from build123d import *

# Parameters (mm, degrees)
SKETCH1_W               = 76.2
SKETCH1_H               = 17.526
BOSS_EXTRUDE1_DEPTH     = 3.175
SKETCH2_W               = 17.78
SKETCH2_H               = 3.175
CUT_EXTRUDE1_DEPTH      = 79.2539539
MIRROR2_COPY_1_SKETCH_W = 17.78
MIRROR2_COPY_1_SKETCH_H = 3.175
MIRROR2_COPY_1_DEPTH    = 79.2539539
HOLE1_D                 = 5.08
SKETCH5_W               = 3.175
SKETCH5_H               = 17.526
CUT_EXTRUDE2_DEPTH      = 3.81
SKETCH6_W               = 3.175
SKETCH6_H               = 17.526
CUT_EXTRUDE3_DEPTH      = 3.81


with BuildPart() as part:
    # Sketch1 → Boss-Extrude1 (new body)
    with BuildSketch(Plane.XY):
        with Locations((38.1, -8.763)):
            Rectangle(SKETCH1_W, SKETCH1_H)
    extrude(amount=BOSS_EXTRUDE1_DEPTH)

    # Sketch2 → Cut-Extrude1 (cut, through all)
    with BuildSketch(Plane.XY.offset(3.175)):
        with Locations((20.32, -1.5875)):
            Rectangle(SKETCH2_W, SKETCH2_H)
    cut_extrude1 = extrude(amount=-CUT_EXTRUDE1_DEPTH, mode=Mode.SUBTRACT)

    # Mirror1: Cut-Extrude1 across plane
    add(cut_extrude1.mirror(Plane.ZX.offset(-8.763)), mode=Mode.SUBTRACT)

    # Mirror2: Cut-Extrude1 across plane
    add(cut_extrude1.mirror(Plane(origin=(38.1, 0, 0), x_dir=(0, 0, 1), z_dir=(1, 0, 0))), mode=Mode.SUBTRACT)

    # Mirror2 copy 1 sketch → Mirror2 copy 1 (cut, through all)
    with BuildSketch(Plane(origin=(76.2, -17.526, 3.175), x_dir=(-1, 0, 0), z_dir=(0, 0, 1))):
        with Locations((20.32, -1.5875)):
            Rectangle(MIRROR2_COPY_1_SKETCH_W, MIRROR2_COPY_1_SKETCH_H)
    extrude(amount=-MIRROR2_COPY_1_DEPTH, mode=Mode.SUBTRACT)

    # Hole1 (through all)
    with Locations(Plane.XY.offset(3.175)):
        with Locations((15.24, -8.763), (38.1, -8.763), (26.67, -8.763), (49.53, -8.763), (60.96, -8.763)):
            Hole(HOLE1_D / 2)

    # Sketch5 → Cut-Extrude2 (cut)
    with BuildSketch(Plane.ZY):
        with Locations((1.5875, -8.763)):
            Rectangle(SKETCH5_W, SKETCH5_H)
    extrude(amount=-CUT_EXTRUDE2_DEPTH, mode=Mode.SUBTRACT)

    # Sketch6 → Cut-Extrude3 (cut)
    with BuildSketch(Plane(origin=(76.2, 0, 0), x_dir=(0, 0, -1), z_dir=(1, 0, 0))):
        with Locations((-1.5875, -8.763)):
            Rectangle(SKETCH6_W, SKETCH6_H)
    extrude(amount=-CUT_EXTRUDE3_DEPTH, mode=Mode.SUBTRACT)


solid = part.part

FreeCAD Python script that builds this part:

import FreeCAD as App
import Part
import Sketcher
Q = App.Units.Quantity


def add_polygon(sketch, points):
    """Adds a closed chain of lines whose ends are joined by coincident constraints."""
    first, n = sketch.GeometryCount, len(points)
    for a, b in zip(points, points[1:] + points[:1]):
        sketch.addGeometry(Part.LineSegment(App.Vector(*a, 0), App.Vector(*b, 0)), False)
    for i in range(n):
        sketch.addConstraint(Sketcher.Constraint("Coincident", first + i, 2, first + (i + 1) % n, 1))

doc = App.newDocument("Part")
params = doc.addObject("Spreadsheet::Sheet", "Params")
for row, (alias, value) in enumerate([
    ("sketch1_width", "3 in"),
    ("sketch1_height", "0.69 in"),
    ("pad1_length", "0.125 in"),
    ("sketch2_width", "0.7 in"),
    ("sketch2_height", "0.125 in"),
    ("sketch3_width", "0.7 in"),
    ("sketch3_height", "0.125 in"),
    ("sketch4_diameter", "0.2 in"),
    ("hole_diameter", "0.2 in"),
    ("sketch5_width", "0.69 in"),
    ("sketch5_height", "0.125 in"),
    ("pocket3_length", "0.15 in"),
    ("sketch6_width", "0.69 in"),
    ("sketch6_height", "0.125 in"),
    ("pocket4_length", "0.15 in"),
], start=1):
    params.set(f"A{row}", alias)
    params.set(f"B{row}", "=" + value)
    params.setAlias(f"B{row}", alias)

body = doc.addObject("PartDesign::Body", "Body")

# Sketch on XY plane
sketch1 = body.newObject("Sketcher::SketchObject", "Sketch")
sketch1.AttachmentSupport = (doc.getObject("XY_Plane"), [""])
sketch1.MapMode = "FlatFace"
add_polygon(sketch1, [(0, 0), (0, -18), (76, -18), (76, 0)])  # lines 0-3
sketch1.addConstraint(Sketcher.Constraint("Vertical", 0))
sketch1.addConstraint(Sketcher.Constraint("Horizontal", 1))
sketch1.addConstraint(Sketcher.Constraint("Vertical", 2))
sketch1.addConstraint(Sketcher.Constraint("Horizontal", 3))
sketch1.addConstraint(Sketcher.Constraint("Coincident", 3, 2, -1, 1))
sketch1.addConstraint(Sketcher.Constraint("DistanceX", 1, 1, 1, 2, Q("3 in")))
sketch1.addConstraint(Sketcher.Constraint("DistanceY", 0, 2, 0, 1, Q("0.69 in")))
sketch1.setExpression("Constraints[9]", "Params.sketch1_width")
sketch1.setExpression("Constraints[10]", "Params.sketch1_height")
pad1 = body.newObject("PartDesign::Pad", "Pad")
pad1.Profile = sketch1
pad1.setExpression("Length", "Params.pad1_length")

# Sketch on XY plane
sketch2 = body.newObject("Sketcher::SketchObject", "Sketch001")
sketch2.AttachmentSupport = (doc.getObject("XY_Plane"), [""])
sketch2.MapMode = "FlatFace"
sketch2.AttachmentOffset = App.Placement(App.Vector(0, 0, 0.125 * 25.4), App.Rotation())
add_polygon(sketch2, [(11.4, 0), (11.4, -3.2), (29.2, -3.2), (29.2, 0)])  # lines 0-3
sketch2.addConstraint(Sketcher.Constraint("Vertical", 0))
sketch2.addConstraint(Sketcher.Constraint("Horizontal", 1))
sketch2.addConstraint(Sketcher.Constraint("Vertical", 2))
sketch2.addConstraint(Sketcher.Constraint("Horizontal", 3))
sketch2.addConstraint(Sketcher.Constraint("PointOnObject", 2, 2, -1))
sketch2.addConstraint(Sketcher.Constraint("DistanceX", 1, 1, 1, 2, Q("0.7 in")))
sketch2.addConstraint(Sketcher.Constraint("DistanceY", 0, 2, 0, 1, Q("0.125 in")))
sketch2.addConstraint(Sketcher.Constraint("DistanceX", -1, 1, 0, 2, Q("0.45 in")))
sketch2.setExpression("Constraints[9]", "Params.sketch2_width")
sketch2.setExpression("Constraints[10]", "Params.sketch2_height")
pocket1 = body.newObject("PartDesign::Pocket", "Pocket")
pocket1.Profile = sketch2
pocket1.Type = "ThroughAll"
doc.recompute()

datumplane = body.newObject("PartDesign::Plane", "DatumPlane")
datumplane.AttachmentSupport = (doc.getObject("XZ_Plane"), [""])
datumplane.MapMode = "FlatFace"
datumplane.AttachmentOffset = App.Placement(App.Vector(0, 0, 0.345 * 25.4), App.Rotation())
mirrored = body.newObject("PartDesign::Mirrored", "Mirrored")
mirrored.Originals = [pocket1]
mirrored.MirrorPlane = (datumplane, [""])
body.Tip = mirrored
doc.recompute()

datumplane2 = body.newObject("PartDesign::Plane", "DatumPlane001")
datumplane2.AttachmentSupport = (doc.getObject("YZ_Plane"), [""])
datumplane2.MapMode = "FlatFace"
datumplane2.AttachmentOffset = App.Placement(App.Vector(0, 0, 1.5 * 25.4), App.Rotation())
mirrored2 = body.newObject("PartDesign::Mirrored", "Mirrored001")
mirrored2.Originals = [pocket1]
mirrored2.MirrorPlane = (datumplane2, [""])
body.Tip = mirrored2

# Sketch on XY plane
sketch3 = body.newObject("Sketcher::SketchObject", "Sketch002")
sketch3.AttachmentSupport = (doc.getObject("XY_Plane"), [""])
sketch3.MapMode = "FlatFace"
sketch3.AttachmentOffset = App.Placement(App.Vector(0, 0, 0.125 * 25.4), App.Rotation())
add_polygon(sketch3, [(64.8, -17.5), (64.8, -14.4), (47, -14.4), (47, -17.5)])  # lines 0-3
sketch3.addConstraint(Sketcher.Constraint("Vertical", 0))
sketch3.addConstraint(Sketcher.Constraint("Horizontal", 1))
sketch3.addConstraint(Sketcher.Constraint("Vertical", 2))
sketch3.addConstraint(Sketcher.Constraint("Horizontal", 3))
sketch3.addConstraint(Sketcher.Constraint("DistanceX", 1, 2, 1, 1, Q("0.7 in")))
sketch3.addConstraint(Sketcher.Constraint("DistanceY", 0, 1, 0, 2, Q("0.125 in")))
sketch3.addConstraint(Sketcher.Constraint("DistanceX", -1, 1, 0, 2, Q("2.55 in")))
sketch3.addConstraint(Sketcher.Constraint("DistanceY", 2, 2, -1, 1, Q("0.69 in")))
sketch3.setExpression("Constraints[8]", "Params.sketch3_width")
sketch3.setExpression("Constraints[9]", "Params.sketch3_height")
pocket2 = body.newObject("PartDesign::Pocket", "Pocket001")
pocket2.Profile = sketch3
pocket2.Type = "ThroughAll"

# Sketch on XY plane
sketch4 = body.newObject("Sketcher::SketchObject", "Sketch003")
sketch4.AttachmentSupport = (doc.getObject("XY_Plane"), [""])
sketch4.MapMode = "FlatFace"
sketch4.AttachmentOffset = App.Placement(App.Vector(0, 0, 0.125 * 25.4), App.Rotation())
sketch4.addGeometry(Part.Circle(App.Vector(15.2, -8.8, 0), App.Vector(0, 0, 1), 2.5), False)
sketch4.addGeometry(Part.Circle(App.Vector(38.1, -8.8, 0), App.Vector(0, 0, 1), 2.5), False)
sketch4.addGeometry(Part.Circle(App.Vector(26.7, -8.8, 0), App.Vector(0, 0, 1), 2.5), False)
sketch4.addGeometry(Part.Circle(App.Vector(49.5, -8.8, 0), App.Vector(0, 0, 1), 2.5), False)
sketch4.addGeometry(Part.Circle(App.Vector(61, -8.8, 0), App.Vector(0, 0, 1), 2.5), False)
sketch4.addConstraint(Sketcher.Constraint("Equal", 0, 1))
sketch4.addConstraint(Sketcher.Constraint("Equal", 1, 2))
sketch4.addConstraint(Sketcher.Constraint("Equal", 2, 3))
sketch4.addConstraint(Sketcher.Constraint("Equal", 3, 4))
sketch4.addConstraint(Sketcher.Constraint("Horizontal", 0, 3, 1, 3))
sketch4.addConstraint(Sketcher.Constraint("Horizontal", 1, 3, 2, 3))
sketch4.addConstraint(Sketcher.Constraint("Horizontal", 2, 3, 3, 3))
sketch4.addConstraint(Sketcher.Constraint("Horizontal", 3, 3, 4, 3))
sketch4.addConstraint(Sketcher.Constraint("Diameter", 0, Q("0.2 in")))
sketch4.addConstraint(Sketcher.Constraint("DistanceX", -1, 1, 0, 3, Q("0.6 in")))
sketch4.addConstraint(Sketcher.Constraint("DistanceX", -1, 1, 1, 3, Q("1.5 in")))
sketch4.addConstraint(Sketcher.Constraint("DistanceX", -1, 1, 4, 3, Q("2.4 in")))
sketch4.addConstraint(Sketcher.Constraint("DistanceX", 2, 3, 3, 3, Q("0.9 in")))
sketch4.addConstraint(Sketcher.Constraint("DistanceX", -1, 1, 2, 3, Q("1.05 in")))
sketch4.addConstraint(Sketcher.Constraint("DistanceY", 0, 3, -1, 1, Q("0.345 in")))
sketch4.setExpression("Constraints[8]", "Params.sketch4_diameter")
doc.recompute()
hole = body.newObject("PartDesign::Hole", "Hole")
hole.Profile = sketch4
hole.ThreadType = "None"
hole.setExpression("Diameter", "Params.hole_diameter")
hole.DepthType = "ThroughAll"

# Sketch on YZ plane
sketch5 = body.newObject("Sketcher::SketchObject", "Sketch004")
sketch5.AttachmentSupport = (doc.getObject("YZ_Plane"), [""])
sketch5.MapMode = "FlatFace"
add_polygon(sketch5, [(0, 0), (-17.5, 0), (-17.5, 3.2), (0, 3.2)])  # lines 0-3
sketch5.addConstraint(Sketcher.Constraint("Horizontal", 0))
sketch5.addConstraint(Sketcher.Constraint("Vertical", 1))
sketch5.addConstraint(Sketcher.Constraint("Horizontal", 2))
sketch5.addConstraint(Sketcher.Constraint("Vertical", 3))
sketch5.addConstraint(Sketcher.Constraint("Coincident", 3, 2, -1, 1))
sketch5.addConstraint(Sketcher.Constraint("DistanceX", 0, 2, 0, 1, Q("0.69 in")))
sketch5.addConstraint(Sketcher.Constraint("DistanceY", 1, 1, 1, 2, Q("0.125 in")))
sketch5.setExpression("Constraints[9]", "Params.sketch5_width")
sketch5.setExpression("Constraints[10]", "Params.sketch5_height")
pocket3 = body.newObject("PartDesign::Pocket", "Pocket002")
pocket3.Profile = sketch5
pocket3.setExpression("Length", "Params.pocket3_length")
pocket3.Reversed = True

# Sketch on YZ plane
sketch6 = body.newObject("Sketcher::SketchObject", "Sketch005")
sketch6.AttachmentSupport = (doc.getObject("YZ_Plane"), [""])
sketch6.MapMode = "FlatFace"
sketch6.AttachmentOffset = App.Placement(App.Vector(0, 0, 3 * 25.4), App.Rotation())
add_polygon(sketch6, [(0, 3.2), (-17.5, 3.2), (-17.5, 0), (0, 0)])  # lines 0-3
sketch6.addConstraint(Sketcher.Constraint("Horizontal", 0))
sketch6.addConstraint(Sketcher.Constraint("Vertical", 1))
sketch6.addConstraint(Sketcher.Constraint("Horizontal", 2))
sketch6.addConstraint(Sketcher.Constraint("Vertical", 3))
sketch6.addConstraint(Sketcher.Constraint("Coincident", 2, 2, -1, 1))
sketch6.addConstraint(Sketcher.Constraint("DistanceX", 0, 2, 0, 1, Q("0.69 in")))
sketch6.addConstraint(Sketcher.Constraint("DistanceY", 1, 2, 1, 1, Q("0.125 in")))
sketch6.setExpression("Constraints[9]", "Params.sketch6_width")
sketch6.setExpression("Constraints[10]", "Params.sketch6_height")
pocket4 = body.newObject("PartDesign::Pocket", "Pocket003")
pocket4.Profile = sketch6
pocket4.setExpression("Length", "Params.pocket4_length")

doc.recompute()
